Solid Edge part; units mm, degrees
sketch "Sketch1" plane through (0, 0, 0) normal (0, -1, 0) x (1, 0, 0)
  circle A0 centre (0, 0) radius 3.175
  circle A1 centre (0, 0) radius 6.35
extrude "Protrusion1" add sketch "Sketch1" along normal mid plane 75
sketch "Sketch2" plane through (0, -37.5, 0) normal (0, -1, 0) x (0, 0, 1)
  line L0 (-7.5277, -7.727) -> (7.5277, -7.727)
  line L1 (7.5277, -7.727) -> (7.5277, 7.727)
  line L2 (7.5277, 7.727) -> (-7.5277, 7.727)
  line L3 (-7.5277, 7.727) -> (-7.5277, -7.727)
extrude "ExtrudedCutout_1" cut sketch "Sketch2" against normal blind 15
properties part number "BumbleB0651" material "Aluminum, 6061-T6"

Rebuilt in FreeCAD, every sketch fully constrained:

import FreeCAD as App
import Part
import Sketcher

V = App.Vector
Q = App.Units.Quantity


def add_polygon(sketch, points):
    """Adds a closed chain of lines whose ends are joined by coincident constraints."""
    first, n = sketch.GeometryCount, len(points)
    for a, b in zip(points, points[1:] + points[:1]):
        sketch.addGeometry(Part.LineSegment(App.Vector(*a, 0), App.Vector(*b, 0)), False)
    for i in range(n):
        sketch.addConstraint(Sketcher.Constraint("Coincident", first + i, 2, first + (i + 1) % n, 1))

doc = App.newDocument("Part")
body = doc.addObject("PartDesign::Body", "Body")

# Sketch on XZ plane
sketch1 = doc.addObject("Sketcher::SketchObject", "Sketch")
body.addObject(sketch1)
sketch1.AttachmentSupport = (doc.XZ_Plane, [""])
sketch1.MapMode = "FlatFace"
sketch1.addGeometry([
    Part.Circle(V(0, 0, 0), V(0, 0, 1), 6.3),
    Part.Circle(V(0, 0, 0), V(0, 0, 1), 3.2),
], False)
sketch1.addConstraint([
    Sketcher.Constraint("Coincident", 0, 3, -1, 1),
    Sketcher.Constraint("Coincident", 1, 3, -1, 1),
    Sketcher.Constraint("Diameter", 0, Q("12.7 mm")),
    Sketcher.Constraint("Diameter", 1, Q("6.35 mm")),
])
pad1 = doc.addObject("PartDesign::Pad", "Pad")
body.addObject(pad1)
pad1.Profile = sketch1
pad1.Length = 75
pad1.Midplane = True

# Sketch on XZ plane
sketch2 = doc.addObject("Sketcher::SketchObject", "Sketch001")
body.addObject(sketch2)
sketch2.AttachmentSupport = (doc.XZ_Plane, [""])
sketch2.MapMode = "FlatFace"
sketch2.AttachmentOffset = App.Placement(V(0, 0, 37.5), App.Rotation())
add_polygon(sketch2, [(-8, -8), (8, -8), (8, 8), (-8, 8)])  # lines 0-3
sketch2.addConstraint([
    Sketcher.Constraint("Horizontal", 0),
    Sketcher.Constraint("Vertical", 1),
    Sketcher.Constraint("Horizontal", 2),
    Sketcher.Constraint("Vertical", 3),
    Sketcher.Constraint("Symmetric", 0, 2, 2, 2, -1, 1),
    Sketcher.Constraint("DistanceX", 0, 1, 0, 2, Q("15.454 mm")),
    Sketcher.Constraint("DistanceY", 1, 1, 1, 2, Q("15.0554 mm")),
])
pocket1 = doc.addObject("PartDesign::Pocket", "Pocket")
body.addObject(pocket1)
pocket1.Profile = sketch2
pocket1.Length = 15

doc.recompute()
